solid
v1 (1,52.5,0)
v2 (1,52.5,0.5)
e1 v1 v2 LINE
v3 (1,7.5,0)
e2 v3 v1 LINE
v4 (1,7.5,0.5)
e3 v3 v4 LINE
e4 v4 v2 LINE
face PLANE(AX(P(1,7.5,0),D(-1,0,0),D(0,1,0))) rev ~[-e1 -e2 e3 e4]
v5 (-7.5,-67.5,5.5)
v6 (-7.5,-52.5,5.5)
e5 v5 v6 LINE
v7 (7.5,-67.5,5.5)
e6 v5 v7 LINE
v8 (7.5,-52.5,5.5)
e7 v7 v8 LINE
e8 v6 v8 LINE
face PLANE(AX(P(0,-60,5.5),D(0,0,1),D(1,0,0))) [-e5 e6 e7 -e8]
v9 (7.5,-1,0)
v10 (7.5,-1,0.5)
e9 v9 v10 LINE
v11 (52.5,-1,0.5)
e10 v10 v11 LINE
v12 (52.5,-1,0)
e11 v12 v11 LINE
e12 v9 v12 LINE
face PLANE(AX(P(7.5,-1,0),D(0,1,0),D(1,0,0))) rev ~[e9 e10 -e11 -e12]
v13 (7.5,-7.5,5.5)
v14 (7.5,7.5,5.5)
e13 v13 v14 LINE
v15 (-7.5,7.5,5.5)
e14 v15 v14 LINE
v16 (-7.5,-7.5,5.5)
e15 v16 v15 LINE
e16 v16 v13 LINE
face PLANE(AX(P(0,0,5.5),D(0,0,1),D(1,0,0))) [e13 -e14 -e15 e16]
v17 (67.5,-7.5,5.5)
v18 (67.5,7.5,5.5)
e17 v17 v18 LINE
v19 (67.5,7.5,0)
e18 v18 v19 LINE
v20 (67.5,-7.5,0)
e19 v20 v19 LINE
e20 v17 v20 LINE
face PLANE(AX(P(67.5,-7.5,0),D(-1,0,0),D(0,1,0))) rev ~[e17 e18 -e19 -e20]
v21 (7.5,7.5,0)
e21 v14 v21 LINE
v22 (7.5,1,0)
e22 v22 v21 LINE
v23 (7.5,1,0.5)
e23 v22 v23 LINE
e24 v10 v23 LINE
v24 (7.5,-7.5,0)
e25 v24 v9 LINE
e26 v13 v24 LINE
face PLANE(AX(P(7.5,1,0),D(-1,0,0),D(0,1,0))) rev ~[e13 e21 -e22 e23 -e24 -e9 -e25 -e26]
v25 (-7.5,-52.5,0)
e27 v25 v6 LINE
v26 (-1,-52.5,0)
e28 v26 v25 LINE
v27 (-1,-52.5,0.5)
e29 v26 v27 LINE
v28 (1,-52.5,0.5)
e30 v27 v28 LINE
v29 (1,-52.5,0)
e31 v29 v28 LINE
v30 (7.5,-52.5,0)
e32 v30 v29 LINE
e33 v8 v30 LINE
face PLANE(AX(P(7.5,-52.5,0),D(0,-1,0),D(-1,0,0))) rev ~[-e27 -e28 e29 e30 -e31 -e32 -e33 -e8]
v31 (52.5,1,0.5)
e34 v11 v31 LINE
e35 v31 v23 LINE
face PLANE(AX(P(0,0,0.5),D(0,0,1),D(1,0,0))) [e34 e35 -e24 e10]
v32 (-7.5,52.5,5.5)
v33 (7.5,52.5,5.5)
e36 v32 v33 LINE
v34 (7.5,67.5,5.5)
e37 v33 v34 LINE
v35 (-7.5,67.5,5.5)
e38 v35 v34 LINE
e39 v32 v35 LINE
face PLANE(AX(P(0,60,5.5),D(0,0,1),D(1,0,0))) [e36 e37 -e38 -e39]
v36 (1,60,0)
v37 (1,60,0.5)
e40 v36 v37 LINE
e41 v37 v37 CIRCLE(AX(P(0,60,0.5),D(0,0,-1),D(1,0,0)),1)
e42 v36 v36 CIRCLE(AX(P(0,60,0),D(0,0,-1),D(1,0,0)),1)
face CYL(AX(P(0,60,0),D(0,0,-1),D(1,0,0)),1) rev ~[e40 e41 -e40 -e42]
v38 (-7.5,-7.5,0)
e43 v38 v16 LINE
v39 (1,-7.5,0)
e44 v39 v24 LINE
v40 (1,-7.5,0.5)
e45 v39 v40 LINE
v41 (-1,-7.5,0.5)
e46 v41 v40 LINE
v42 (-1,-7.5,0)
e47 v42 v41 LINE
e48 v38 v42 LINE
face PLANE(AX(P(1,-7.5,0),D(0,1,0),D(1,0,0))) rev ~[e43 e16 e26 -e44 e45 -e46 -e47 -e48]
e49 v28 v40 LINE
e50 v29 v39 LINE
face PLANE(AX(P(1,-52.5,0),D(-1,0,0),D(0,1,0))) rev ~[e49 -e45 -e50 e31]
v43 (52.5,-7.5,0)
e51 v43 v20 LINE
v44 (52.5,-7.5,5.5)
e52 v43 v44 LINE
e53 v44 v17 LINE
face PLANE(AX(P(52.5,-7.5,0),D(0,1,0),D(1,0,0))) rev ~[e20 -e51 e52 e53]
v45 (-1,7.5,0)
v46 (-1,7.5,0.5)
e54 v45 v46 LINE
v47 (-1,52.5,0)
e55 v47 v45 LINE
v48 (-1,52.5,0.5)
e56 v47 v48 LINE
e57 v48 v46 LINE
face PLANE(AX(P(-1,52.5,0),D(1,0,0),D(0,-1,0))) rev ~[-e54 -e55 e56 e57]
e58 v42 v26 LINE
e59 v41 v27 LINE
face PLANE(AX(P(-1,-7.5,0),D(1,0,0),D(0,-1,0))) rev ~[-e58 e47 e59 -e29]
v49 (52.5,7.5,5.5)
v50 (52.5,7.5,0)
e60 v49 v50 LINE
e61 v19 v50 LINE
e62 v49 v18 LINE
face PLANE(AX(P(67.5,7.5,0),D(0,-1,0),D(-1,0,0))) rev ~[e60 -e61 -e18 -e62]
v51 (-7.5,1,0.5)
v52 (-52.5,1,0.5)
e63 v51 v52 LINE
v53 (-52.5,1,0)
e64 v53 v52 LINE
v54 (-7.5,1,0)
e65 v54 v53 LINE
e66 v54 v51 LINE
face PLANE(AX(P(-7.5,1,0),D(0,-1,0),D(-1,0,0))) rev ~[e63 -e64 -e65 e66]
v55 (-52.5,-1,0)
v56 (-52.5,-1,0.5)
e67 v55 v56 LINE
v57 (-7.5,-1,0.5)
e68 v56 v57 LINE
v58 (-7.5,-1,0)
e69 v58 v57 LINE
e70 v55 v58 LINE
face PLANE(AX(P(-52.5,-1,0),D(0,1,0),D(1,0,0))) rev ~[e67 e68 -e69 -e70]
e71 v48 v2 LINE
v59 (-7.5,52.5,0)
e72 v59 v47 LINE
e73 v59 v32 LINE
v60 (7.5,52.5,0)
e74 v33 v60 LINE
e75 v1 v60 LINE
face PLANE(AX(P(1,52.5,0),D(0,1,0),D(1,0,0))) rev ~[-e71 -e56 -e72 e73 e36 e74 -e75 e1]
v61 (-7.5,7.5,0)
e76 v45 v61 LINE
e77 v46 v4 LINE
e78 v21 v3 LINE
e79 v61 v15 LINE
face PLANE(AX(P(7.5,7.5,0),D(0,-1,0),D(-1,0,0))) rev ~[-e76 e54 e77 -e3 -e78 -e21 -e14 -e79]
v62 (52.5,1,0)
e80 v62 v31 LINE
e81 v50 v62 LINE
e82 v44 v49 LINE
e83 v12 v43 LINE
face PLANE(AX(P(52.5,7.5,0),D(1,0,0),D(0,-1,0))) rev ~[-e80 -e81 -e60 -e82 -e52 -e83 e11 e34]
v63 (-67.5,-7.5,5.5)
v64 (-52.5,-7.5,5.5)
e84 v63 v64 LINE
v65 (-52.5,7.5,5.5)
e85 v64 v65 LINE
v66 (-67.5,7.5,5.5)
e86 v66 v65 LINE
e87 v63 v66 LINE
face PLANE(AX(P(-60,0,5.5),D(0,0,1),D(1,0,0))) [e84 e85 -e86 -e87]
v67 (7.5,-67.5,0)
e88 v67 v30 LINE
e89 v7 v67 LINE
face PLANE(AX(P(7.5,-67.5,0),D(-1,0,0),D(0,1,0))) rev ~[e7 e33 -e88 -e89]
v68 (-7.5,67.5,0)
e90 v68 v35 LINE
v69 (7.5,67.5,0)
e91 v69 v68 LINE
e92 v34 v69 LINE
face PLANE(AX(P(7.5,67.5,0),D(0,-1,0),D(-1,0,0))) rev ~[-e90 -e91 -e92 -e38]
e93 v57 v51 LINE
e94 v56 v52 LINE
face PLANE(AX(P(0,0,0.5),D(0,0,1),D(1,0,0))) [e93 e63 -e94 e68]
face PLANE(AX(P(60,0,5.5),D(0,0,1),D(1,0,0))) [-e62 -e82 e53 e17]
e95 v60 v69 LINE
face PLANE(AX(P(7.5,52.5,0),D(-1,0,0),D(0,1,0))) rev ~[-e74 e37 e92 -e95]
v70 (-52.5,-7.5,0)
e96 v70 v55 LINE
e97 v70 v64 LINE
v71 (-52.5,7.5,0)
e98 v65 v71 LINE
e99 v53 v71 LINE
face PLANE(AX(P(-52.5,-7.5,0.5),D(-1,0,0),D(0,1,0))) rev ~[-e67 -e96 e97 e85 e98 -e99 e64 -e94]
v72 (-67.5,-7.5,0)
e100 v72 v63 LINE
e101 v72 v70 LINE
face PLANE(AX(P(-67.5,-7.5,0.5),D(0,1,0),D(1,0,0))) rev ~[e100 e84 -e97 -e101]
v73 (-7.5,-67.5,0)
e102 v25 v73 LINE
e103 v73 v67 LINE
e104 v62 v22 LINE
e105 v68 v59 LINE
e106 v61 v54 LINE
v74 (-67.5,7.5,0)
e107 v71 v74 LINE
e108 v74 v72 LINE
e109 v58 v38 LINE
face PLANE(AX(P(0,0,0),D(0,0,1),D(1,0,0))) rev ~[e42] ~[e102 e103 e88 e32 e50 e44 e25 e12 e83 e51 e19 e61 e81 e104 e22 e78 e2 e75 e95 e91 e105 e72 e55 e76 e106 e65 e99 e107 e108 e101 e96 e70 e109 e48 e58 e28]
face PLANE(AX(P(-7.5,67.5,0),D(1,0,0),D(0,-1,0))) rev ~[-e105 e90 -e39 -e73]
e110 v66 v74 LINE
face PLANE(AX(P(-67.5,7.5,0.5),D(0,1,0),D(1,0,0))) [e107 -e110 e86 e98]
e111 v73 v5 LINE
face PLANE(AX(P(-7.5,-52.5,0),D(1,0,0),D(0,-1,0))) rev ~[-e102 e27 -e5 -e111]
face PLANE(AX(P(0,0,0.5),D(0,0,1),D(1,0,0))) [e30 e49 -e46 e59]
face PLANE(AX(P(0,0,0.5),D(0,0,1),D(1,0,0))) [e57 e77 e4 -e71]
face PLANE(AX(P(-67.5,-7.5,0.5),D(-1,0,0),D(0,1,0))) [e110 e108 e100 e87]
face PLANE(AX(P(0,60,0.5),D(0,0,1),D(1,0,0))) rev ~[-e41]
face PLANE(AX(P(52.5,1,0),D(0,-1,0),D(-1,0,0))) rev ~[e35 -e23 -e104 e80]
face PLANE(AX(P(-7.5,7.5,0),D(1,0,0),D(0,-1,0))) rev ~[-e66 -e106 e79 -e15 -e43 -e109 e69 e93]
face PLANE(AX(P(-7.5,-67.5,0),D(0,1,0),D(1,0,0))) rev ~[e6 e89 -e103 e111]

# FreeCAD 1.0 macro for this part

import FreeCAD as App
import Part
import Sketcher
from FreeCAD import Vector

doc = App.newDocument("Part")
body = doc.addObject("PartDesign::Body", "Body")

# Sketch on XY plane
sketch1 = doc.addObject("Sketcher::SketchObject", "Sketch")
body.addObject(sketch1)
sketch1.AttachmentSupport = (doc.XY_Plane, [""])
sketch1.MapMode = "FlatFace"
sketch1.addGeometry([
    Part.LineSegment(Vector(8, 68, 0), Vector(-8, 68, 0)),  # 0
    Part.LineSegment(Vector(-8, 68, 0), Vector(-8, 52, 0)),  # 1
    Part.LineSegment(Vector(-8, 52, 0), Vector(-1, 52, 0)),  # 2
    Part.LineSegment(Vector(-1, 52, 0), Vector(-1, 8, 0)),  # 3
    Part.LineSegment(Vector(-1, 8, 0), Vector(-8, 8, 0)),  # 4
    Part.LineSegment(Vector(-8, 8, 0), Vector(-8, 1, 0)),  # 5
    Part.LineSegment(Vector(-8, 1, 0), Vector(-52, 1, 0)),  # 6
    Part.LineSegment(Vector(-52, 1, 0), Vector(-52, 8, 0)),  # 7
    Part.LineSegment(Vector(-52, 8, 0), Vector(-68, 8, 0)),  # 8
    Part.LineSegment(Vector(-68, 8, 0), Vector(-68, -8, 0)),  # 9
    Part.LineSegment(Vector(-68, -8, 0), Vector(-52, -8, 0)),  # 10
    Part.LineSegment(Vector(-52, -8, 0), Vector(-52, -1, 0)),  # 11
    Part.LineSegment(Vector(-52, -1, 0), Vector(-8, -1, 0)),  # 12
    Part.LineSegment(Vector(-8, -1, 0), Vector(-8, -8, 0)),  # 13
    Part.LineSegment(Vector(-8, -8, 0), Vector(-1, -8, 0)),  # 14
    Part.LineSegment(Vector(-1, -8, 0), Vector(-1, -52, 0)),  # 15
    Part.LineSegment(Vector(-1, -52, 0), Vector(-8, -52, 0)),  # 16
    Part.LineSegment(Vector(-8, -52, 0), Vector(-8, -68, 0)),  # 17
    Part.LineSegment(Vector(-8, -68, 0), Vector(8, -68, 0)),  # 18
    Part.LineSegment(Vector(8, -68, 0), Vector(8, -52, 0)),  # 19
    Part.LineSegment(Vector(8, -52, 0), Vector(1, -52, 0)),  # 20
    Part.LineSegment(Vector(1, -52, 0), Vector(1, -8, 0)),  # 21
    Part.LineSegment(Vector(1, -8, 0), Vector(8, -8, 0)),  # 22
    Part.LineSegment(Vector(8, -8, 0), Vector(8, -1, 0)),  # 23
    Part.LineSegment(Vector(8, -1, 0), Vector(52, -1, 0)),  # 24
    Part.LineSegment(Vector(52, -1, 0), Vector(52, -8, 0)),  # 25
    Part.LineSegment(Vector(52, -8, 0), Vector(68, -8, 0)),  # 26
    Part.LineSegment(Vector(68, -8, 0), Vector(68, 8, 0)),  # 27
    Part.LineSegment(Vector(68, 8, 0), Vector(52, 8, 0)),  # 28
    Part.LineSegment(Vector(52, 8, 0), Vector(52, 1, 0)),  # 29
    Part.LineSegment(Vector(52, 1, 0), Vector(8, 1, 0)),  # 30
    Part.LineSegment(Vector(8, 1, 0), Vector(8, 8, 0)),  # 31
    Part.LineSegment(Vector(8, 8, 0), Vector(1, 8, 0)),  # 32
    Part.LineSegment(Vector(1, 8, 0), Vector(1, 52, 0)),  # 33
    Part.LineSegment(Vector(1, 52, 0), Vector(8, 52, 0)),  # 34
    Part.LineSegment(Vector(8, 52, 0), Vector(8, 68, 0)),  # 35
], False)
sketch1.addConstraint([
    Sketcher.Constraint("Coincident", 0, 2, 1, 1),
    Sketcher.Constraint("Coincident", 1, 2, 2, 1),
    Sketcher.Constraint("Coincident", 2, 2, 3, 1),
    Sketcher.Constraint("Coincident", 3, 2, 4, 1),
    Sketcher.Constraint("Coincident", 4, 2, 5, 1),
    Sketcher.Constraint("Coincident", 5, 2, 6, 1),
    Sketcher.Constraint("Coincident", 6, 2, 7, 1),
    Sketcher.Constraint("Coincident", 7, 2, 8, 1),
    Sketcher.Constraint("Coincident", 8, 2, 9, 1),
    Sketcher.Constraint("Coincident", 9, 2, 10, 1),
    Sketcher.Constraint("Coincident", 10, 2, 11, 1),
    Sketcher.Constraint("Coincident", 11, 2, 12, 1),
    Sketcher.Constraint("Coincident", 12, 2, 13, 1),
    Sketcher.Constraint("Coincident", 13, 2, 14, 1),
    Sketcher.Constraint("Coincident", 14, 2, 15, 1),
    Sketcher.Constraint("Coincident", 15, 2, 16, 1),
    Sketcher.Constraint("Coincident", 16, 2, 17, 1),
    Sketcher.Constraint("Coincident", 17, 2, 18, 1),
    Sketcher.Constraint("Coincident", 18, 2, 19, 1),
    Sketcher.Constraint("Coincident", 19, 2, 20, 1),
    Sketcher.Constraint("Coincident", 20, 2, 21, 1),
    Sketcher.Constraint("Coincident", 21, 2, 22, 1),
    Sketcher.Constraint("Coincident", 22, 2, 23, 1),
    Sketcher.Constraint("Coincident", 23, 2, 24, 1),
    Sketcher.Constraint("Coincident", 24, 2, 25, 1),
    Sketcher.Constraint("Coincident", 25, 2, 26, 1),
    Sketcher.Constraint("Coincident", 26, 2, 27, 1),
    Sketcher.Constraint("Coincident", 27, 2, 28, 1),
    Sketcher.Constraint("Coincident", 28, 2, 29, 1),
    Sketcher.Constraint("Coincident", 29, 2, 30, 1),
    Sketcher.Constraint("Coincident", 30, 2, 31, 1),
    Sketcher.Constraint("Coincident", 31, 2, 32, 1),
    Sketcher.Constraint("Coincident", 32, 2, 33, 1),
    Sketcher.Constraint("Coincident", 33, 2, 34, 1),
    Sketcher.Constraint("Coincident", 34, 2, 35, 1),
    Sketcher.Constraint("Coincident", 35, 2, 0, 1),
    Sketcher.Constraint("Horizontal", 0),
    Sketcher.Constraint("Vertical", 1),
    Sketcher.Constraint("Horizontal", 2),
    Sketcher.Constraint("Vertical", 3),
    Sketcher.Constraint("Horizontal", 4),
    Sketcher.Constraint("Vertical", 5),
    Sketcher.Constraint("Horizontal", 6),
    Sketcher.Constraint("Vertical", 7),
    Sketcher.Constraint("Horizontal", 8),
    Sketcher.Constraint("Vertical", 9),
    Sketcher.Constraint("Horizontal", 10),
    Sketcher.Constraint("Vertical", 11),
    Sketcher.Constraint("Horizontal", 12),
    Sketcher.Constraint("Vertical", 13),
    Sketcher.Constraint("Horizontal", 14),
    Sketcher.Constraint("Vertical", 15),
    Sketcher.Constraint("Horizontal", 16),
    Sketcher.Constraint("Vertical", 17),
    Sketcher.Constraint("Horizontal", 18),
    Sketcher.Constraint("Vertical", 19),
    Sketcher.Constraint("Horizontal", 20),
    Sketcher.Constraint("Vertical", 21),
    Sketcher.Constraint("Horizontal", 22),
    Sketcher.Constraint("Vertical", 23),
    Sketcher.Constraint("Horizontal", 24),
    Sketcher.Constraint("Vertical", 25),
    Sketcher.Constraint("Horizontal", 26),
    Sketcher.Constraint("Vertical", 27),
    Sketcher.Constraint("Horizontal", 28),
    Sketcher.Constraint("Vertical", 29),
    Sketcher.Constraint("Horizontal", 30),
    Sketcher.Constraint("Vertical", 31),
    Sketcher.Constraint("Horizontal", 32),
    Sketcher.Constraint("Vertical", 33),
    Sketcher.Constraint("Horizontal", 34),
    Sketcher.Constraint("Vertical", 35),
    Sketcher.Constraint("Symmetric", 0, 2, 18, 2, -1, 1),
    Sketcher.Constraint("Symmetric", 2, 2, 20, 2, -1, 1),
    Sketcher.Constraint("Symmetric", 4, 2, 22, 2, -1, 1),
    Sketcher.Constraint("Symmetric", 6, 2, 24, 2, -1, 1),
    Sketcher.Constraint("Symmetric", 8, 2, 26, 2, -1, 1),
    Sketcher.Constraint("Symmetric", 10, 2, 28, 2, -1, 1),
    Sketcher.Constraint("Symmetric", 12, 2, 30, 2, -1, 1),
    Sketcher.Constraint("Symmetric", 14, 2, 32, 2, -1, 1),
    Sketcher.Constraint("Symmetric", 16, 2, 34, 2, -1, 1),
    Sketcher.Constraint("Symmetric", 16, 2, 19, 2, -2),
    Sketcher.Constraint("Symmetric", 14, 2, 21, 2, -2),
    Sketcher.Constraint("Symmetric", 12, 2, 23, 2, -2),
    Sketcher.Constraint("Symmetric", 10, 2, 25, 2, -2),
    Sketcher.Constraint("Horizontal", 4, 2, 7, 2),
    Sketcher.Constraint("Vertical", 1, 2, 4, 2),
    Sketcher.Constraint("Equal", 0, 8),
    Sketcher.Constraint("Equal", 28, 1),
    Sketcher.Constraint("Equal", 30, 3),
    Sketcher.Constraint("Equal", 34, 5),
    Sketcher.Constraint("Equal", 1, 9),
    Sketcher.Constraint("DistanceX", 0, 2, 0, 1, 15.0),
    Sketcher.Constraint("DistanceX", 6, 2, 6, 1, 45.0),
    Sketcher.Constraint("DistanceX", 2, 1, 2, 2, 6.5),
])
pad1 = doc.addObject("PartDesign::Pad", "Pad")
body.addObject(pad1)
pad1.Profile = sketch1
pad1.Length = 0.5

# Sketch on XY plane
sketch2 = doc.addObject("Sketcher::SketchObject", "Sketch001")
body.addObject(sketch2)
sketch2.AttachmentSupport = (doc.XY_Plane, [""])
sketch2.MapMode = "FlatFace"
sketch2.addGeometry(Part.Circle(Vector(0, 60, 0), Vector(0, 0, 1), 1), False)
sketch2.addConstraint([
    Sketcher.Constraint("PointOnObject", 0, 3, -2),
    Sketcher.Constraint("Diameter", 0, 2.0),
    Sketcher.Constraint("DistanceY", -1, 1, 0, 3, 60.0),
])
pocket1 = doc.addObject("PartDesign::Pocket", "Pocket")
body.addObject(pocket1)
pocket1.Profile = sketch2
pocket1.Type = "ThroughAll"
pocket1.Reversed = True

# Sketch on XY plane
sketch3 = doc.addObject("Sketcher::SketchObject", "Sketch002")
body.addObject(sketch3)
sketch3.AttachmentSupport = (doc.XY_Plane, [""])
sketch3.MapMode = "FlatFace"
sketch3.AttachmentOffset = App.Placement(Vector(0, 0, 0.5), App.Rotation())
sketch3.addGeometry([
    Part.LineSegment(Vector(-68, 8, 0), Vector(-68, -8, 0)),  # 0
    Part.LineSegment(Vector(-68, -8, 0), Vector(-52, -8, 0)),  # 1
    Part.LineSegment(Vector(-52, -8, 0), Vector(-52, 8, 0)),  # 2
    Part.LineSegment(Vector(-52, 8, 0), Vector(-68, 8, 0)),  # 3
    Part.LineSegment(Vector(-8, 68, 0), Vector(-8, 52, 0)),  # 4
    Part.LineSegment(Vector(-8, 52, 0), Vector(8, 52, 0)),  # 5
    Part.LineSegment(Vector(8, 52, 0), Vector(8, 68, 0)),  # 6
    Part.LineSegment(Vector(8, 68, 0), Vector(-8, 68, 0)),  # 7
    Part.LineSegment(Vector(52, 8, 0), Vector(52, -8, 0)),  # 8
    Part.LineSegment(Vector(52, -8, 0), Vector(68, -8, 0)),  # 9
    Part.LineSegment(Vector(68, -8, 0), Vector(68, 8, 0)),  # 10
    Part.LineSegment(Vector(68, 8, 0), Vector(52, 8, 0)),  # 11
    Part.LineSegment(Vector(-8, 8, 0), Vector(-8, -8, 0)),  # 12
    Part.LineSegment(Vector(-8, -8, 0), Vector(8, -8, 0)),  # 13
    Part.LineSegment(Vector(8, -8, 0), Vector(8, 8, 0)),  # 14
    Part.LineSegment(Vector(8, 8, 0), Vector(-8, 8, 0)),  # 15
    Part.LineSegment(Vector(-8, -52, 0), Vector(-8, -68, 0)),  # 16
    Part.LineSegment(Vector(-8, -68, 0), Vector(8, -68, 0)),  # 17
    Part.LineSegment(Vector(8, -68, 0), Vector(8, -52, 0)),  # 18
    Part.LineSegment(Vector(8, -52, 0), Vector(-8, -52, 0)),  # 19
], False)
sketch3.addConstraint([
    Sketcher.Constraint("Coincident", 0, 2, 1, 1),
    Sketcher.Constraint("Coincident", 1, 2, 2, 1),
    Sketcher.Constraint("Coincident", 2, 2, 3, 1),
    Sketcher.Constraint("Coincident", 3, 2, 0, 1),
    Sketcher.Constraint("Coincident", 4, 2, 5, 1),
    Sketcher.Constraint("Coincident", 5, 2, 6, 1),
    Sketcher.Constraint("Coincident", 6, 2, 7, 1),
    Sketcher.Constraint("Coincident", 7, 2, 4, 1),
    Sketcher.Constraint("Coincident", 8, 2, 9, 1),
    Sketcher.Constraint("Coincident", 9, 2, 10, 1),
    Sketcher.Constraint("Coincident", 10, 2, 11, 1),
    Sketcher.Constraint("Coincident", 11, 2, 8, 1),
    Sketcher.Constraint("Coincident", 12, 2, 13, 1),
    Sketcher.Constraint("Coincident", 13, 2, 14, 1),
    Sketcher.Constraint("Coincident", 14, 2, 15, 1),
    Sketcher.Constraint("Coincident", 15, 2, 12, 1),
    Sketcher.Constraint("Coincident", 16, 2, 17, 1),
    Sketcher.Constraint("Coincident", 17, 2, 18, 1),
    Sketcher.Constraint("Coincident", 18, 2, 19, 1),
    Sketcher.Constraint("Coincident", 19, 2, 16, 1),
    Sketcher.Constraint("Vertical", 0),
    Sketcher.Constraint("Horizontal", 1),
    Sketcher.Constraint("Vertical", 2),
    Sketcher.Constraint("Horizontal", 3),
    Sketcher.Constraint("Vertical", 4),
    Sketcher.Constraint("Horizontal", 5),
    Sketcher.Constraint("Vertical", 6),
    Sketcher.Constraint("Horizontal", 7),
    Sketcher.Constraint("Vertical", 8),
    Sketcher.Constraint("Horizontal", 9),
    Sketcher.Constraint("Vertical", 10),
    Sketcher.Constraint("Horizontal", 11),
    Sketcher.Constraint("Vertical", 12),
    Sketcher.Constraint("Horizontal", 13),
    Sketcher.Constraint("Vertical", 14),
    Sketcher.Constraint("Horizontal", 15),
    Sketcher.Constraint("Vertical", 16),
    Sketcher.Constraint("Horizontal", 17),
    Sketcher.Constraint("Vertical", 18),
    Sketcher.Constraint("Horizontal", 19),
    Sketcher.Constraint("Symmetric", 2, 2, 8, 2, -1, 1),
    Sketcher.Constraint("Symmetric", 0, 2, 10, 2, -1, 1),
    Sketcher.Constraint("Symmetric", 12, 2, 14, 2, -1, 1),
    Sketcher.Constraint("Symmetric", 6, 2, 16, 2, -1, 1),
    Sketcher.Constraint("Symmetric", 4, 2, 18, 2, -1, 1),
    Sketcher.Constraint("Horizontal", 1, 2, 8, 2),
    Sketcher.Constraint("Horizontal", 9, 2, 12, 2),
    Sketcher.Constraint("Vertical", 7, 2, 12, 2),
    Sketcher.Constraint("Vertical", 6, 2, 13, 2),
    Sketcher.Constraint("Equal", 3, 5),
    Sketcher.Constraint("Equal", 19, 0),
    Sketcher.Constraint("Equal", 2, 4),
    Sketcher.Constraint("DistanceX", 1, 1, 1, 2, 15.0),
    Sketcher.Constraint("DistanceX", 2, 2, 4, 2, 45.0),
    Sketcher.Constraint("DistanceY", 2, 2, 4, 2, 45.0),
])
pad2 = doc.addObject("PartDesign::Pad", "Pad001")
body.addObject(pad2)
pad2.Profile = sketch3
pad2.Length = 5

doc.recompute()
